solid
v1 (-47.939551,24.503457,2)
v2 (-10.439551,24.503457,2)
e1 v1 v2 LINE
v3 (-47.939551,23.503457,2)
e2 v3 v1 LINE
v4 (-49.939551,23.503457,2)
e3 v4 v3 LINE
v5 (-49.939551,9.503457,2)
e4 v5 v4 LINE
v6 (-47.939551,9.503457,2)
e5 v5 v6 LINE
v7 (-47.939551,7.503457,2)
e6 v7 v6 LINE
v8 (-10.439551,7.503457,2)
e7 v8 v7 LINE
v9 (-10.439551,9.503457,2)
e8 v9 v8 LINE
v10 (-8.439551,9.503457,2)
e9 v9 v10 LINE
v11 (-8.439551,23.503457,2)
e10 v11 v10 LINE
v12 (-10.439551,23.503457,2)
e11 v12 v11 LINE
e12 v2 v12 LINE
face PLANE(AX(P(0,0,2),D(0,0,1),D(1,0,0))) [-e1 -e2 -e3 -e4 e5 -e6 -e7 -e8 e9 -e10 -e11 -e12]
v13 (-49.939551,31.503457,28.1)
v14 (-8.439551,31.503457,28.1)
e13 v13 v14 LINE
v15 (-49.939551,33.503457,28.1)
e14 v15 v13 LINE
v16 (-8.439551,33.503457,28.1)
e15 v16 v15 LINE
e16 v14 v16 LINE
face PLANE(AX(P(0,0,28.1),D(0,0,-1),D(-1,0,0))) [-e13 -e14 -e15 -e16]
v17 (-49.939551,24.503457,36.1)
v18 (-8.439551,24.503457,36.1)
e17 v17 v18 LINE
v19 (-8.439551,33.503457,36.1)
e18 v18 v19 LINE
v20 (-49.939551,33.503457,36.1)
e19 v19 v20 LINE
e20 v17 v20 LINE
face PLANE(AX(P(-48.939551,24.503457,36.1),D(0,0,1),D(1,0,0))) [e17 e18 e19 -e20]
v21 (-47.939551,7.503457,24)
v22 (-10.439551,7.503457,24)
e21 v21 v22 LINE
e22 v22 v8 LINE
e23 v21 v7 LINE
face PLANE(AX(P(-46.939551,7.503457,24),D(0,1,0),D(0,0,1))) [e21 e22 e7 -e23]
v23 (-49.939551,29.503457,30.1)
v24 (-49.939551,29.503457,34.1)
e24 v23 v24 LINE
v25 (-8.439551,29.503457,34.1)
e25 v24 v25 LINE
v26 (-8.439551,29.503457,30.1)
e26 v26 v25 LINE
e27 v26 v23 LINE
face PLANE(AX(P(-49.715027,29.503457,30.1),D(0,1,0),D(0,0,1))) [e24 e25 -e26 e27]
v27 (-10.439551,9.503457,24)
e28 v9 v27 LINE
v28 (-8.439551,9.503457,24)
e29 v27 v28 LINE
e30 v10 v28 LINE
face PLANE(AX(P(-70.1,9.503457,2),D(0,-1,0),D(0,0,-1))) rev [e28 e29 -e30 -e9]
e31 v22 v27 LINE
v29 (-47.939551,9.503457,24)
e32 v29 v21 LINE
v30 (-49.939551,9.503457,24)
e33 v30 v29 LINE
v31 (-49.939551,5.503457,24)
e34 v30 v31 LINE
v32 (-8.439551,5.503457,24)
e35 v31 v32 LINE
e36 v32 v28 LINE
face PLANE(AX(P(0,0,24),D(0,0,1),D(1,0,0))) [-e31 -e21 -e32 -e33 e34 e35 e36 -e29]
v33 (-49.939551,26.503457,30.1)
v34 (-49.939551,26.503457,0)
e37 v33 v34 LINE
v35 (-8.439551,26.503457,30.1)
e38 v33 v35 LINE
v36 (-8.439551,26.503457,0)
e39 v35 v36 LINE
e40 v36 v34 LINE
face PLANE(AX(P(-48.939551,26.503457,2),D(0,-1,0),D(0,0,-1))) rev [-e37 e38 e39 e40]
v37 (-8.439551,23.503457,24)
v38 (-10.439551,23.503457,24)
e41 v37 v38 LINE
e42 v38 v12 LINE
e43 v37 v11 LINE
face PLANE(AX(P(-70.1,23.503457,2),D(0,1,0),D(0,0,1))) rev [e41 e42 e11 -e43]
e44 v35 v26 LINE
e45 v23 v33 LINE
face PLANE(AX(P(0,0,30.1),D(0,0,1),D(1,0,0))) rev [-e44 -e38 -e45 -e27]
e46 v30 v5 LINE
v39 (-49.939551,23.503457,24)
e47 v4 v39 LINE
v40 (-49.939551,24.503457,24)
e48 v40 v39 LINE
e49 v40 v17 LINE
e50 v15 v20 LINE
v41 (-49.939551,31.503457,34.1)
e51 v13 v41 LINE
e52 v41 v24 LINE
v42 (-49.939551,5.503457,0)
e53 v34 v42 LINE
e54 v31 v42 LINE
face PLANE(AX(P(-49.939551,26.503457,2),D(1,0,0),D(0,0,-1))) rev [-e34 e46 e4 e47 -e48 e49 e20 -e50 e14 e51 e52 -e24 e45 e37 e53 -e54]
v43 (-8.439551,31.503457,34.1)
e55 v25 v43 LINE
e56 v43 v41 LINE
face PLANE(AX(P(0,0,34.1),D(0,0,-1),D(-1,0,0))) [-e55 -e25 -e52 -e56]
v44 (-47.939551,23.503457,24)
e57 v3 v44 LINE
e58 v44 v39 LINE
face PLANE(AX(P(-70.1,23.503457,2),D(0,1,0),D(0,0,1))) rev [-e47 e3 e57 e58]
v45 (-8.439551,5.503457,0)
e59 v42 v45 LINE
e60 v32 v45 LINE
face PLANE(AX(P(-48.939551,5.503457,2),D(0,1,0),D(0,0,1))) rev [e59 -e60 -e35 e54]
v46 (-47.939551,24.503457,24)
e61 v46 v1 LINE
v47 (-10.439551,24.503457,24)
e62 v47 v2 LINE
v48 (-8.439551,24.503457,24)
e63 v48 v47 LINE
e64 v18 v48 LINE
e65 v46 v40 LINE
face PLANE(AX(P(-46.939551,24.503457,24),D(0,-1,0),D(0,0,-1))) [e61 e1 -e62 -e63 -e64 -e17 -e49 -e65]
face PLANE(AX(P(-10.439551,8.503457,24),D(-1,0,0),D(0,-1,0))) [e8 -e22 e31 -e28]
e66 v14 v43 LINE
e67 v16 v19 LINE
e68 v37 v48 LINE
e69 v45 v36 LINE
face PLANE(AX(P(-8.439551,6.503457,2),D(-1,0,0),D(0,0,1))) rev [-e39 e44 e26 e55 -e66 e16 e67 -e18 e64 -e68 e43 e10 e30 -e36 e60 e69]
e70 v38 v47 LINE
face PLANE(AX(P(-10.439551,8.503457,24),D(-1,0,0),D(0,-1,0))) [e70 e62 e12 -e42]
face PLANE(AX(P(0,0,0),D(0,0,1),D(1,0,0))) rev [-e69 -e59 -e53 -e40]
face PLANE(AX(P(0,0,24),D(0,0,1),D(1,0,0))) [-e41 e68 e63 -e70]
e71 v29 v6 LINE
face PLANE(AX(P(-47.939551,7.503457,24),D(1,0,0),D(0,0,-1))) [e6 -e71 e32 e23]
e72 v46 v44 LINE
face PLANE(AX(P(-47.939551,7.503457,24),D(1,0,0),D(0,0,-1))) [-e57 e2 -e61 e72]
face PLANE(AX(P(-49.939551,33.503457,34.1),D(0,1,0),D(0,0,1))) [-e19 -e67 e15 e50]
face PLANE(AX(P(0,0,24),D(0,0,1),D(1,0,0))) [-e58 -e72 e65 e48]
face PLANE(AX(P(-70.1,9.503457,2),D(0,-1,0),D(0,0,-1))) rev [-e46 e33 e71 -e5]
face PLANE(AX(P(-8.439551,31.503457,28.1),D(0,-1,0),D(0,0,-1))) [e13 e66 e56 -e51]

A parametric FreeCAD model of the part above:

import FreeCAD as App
import Part
import Sketcher

V = App.Vector

doc = App.newDocument("Part")
body = doc.addObject("PartDesign::Body", "Body")

# Sketch on XY plane
sketch1 = doc.addObject("Sketcher::SketchObject", "Sketch")
body.addObject(sketch1)
sketch1.AttachmentSupport = (doc.XY_Plane, [""])
sketch1.MapMode = "FlatFace"
sketch1.addGeometry([
    Part.LineSegment(V(-8, 27, 0), V(-50, 27, 0)),
    Part.LineSegment(V(-50, 27, 0), V(-50, 6, 0)),
    Part.LineSegment(V(-50, 6, 0), V(-8, 6, 0)),
    Part.LineSegment(V(-8, 6, 0), V(-8, 27, 0)),
], False)
sketch1.addConstraint([
    Sketcher.Constraint("Coincident", 0, 2, 1, 1),
    Sketcher.Constraint("Coincident", 1, 2, 2, 1),
    Sketcher.Constraint("Coincident", 2, 2, 3, 1),
    Sketcher.Constraint("Coincident", 3, 2, 0, 1),
    Sketcher.Constraint("Horizontal", 0),
    Sketcher.Constraint("Vertical", 1),
    Sketcher.Constraint("Horizontal", 2),
    Sketcher.Constraint("Vertical", 3),
    Sketcher.Constraint("DistanceY", 1, 2, 1, 1, 21.0),
    Sketcher.Constraint("DistanceX", 0, 2, 0, 1, 41.5),
    Sketcher.Constraint("DistanceX", 0, 2, -1, 1, 49.939551),
    Sketcher.Constraint("DistanceY", -1, 1, 0, 2, 26.503457),
])
pad1 = doc.addObject("PartDesign::Pad", "Pad")
body.addObject(pad1)
pad1.Profile = sketch1
pad1.Length = 2

# Sketch on XY plane
sketch2 = doc.addObject("Sketcher::SketchObject", "Sketch001")
body.addObject(sketch2)
sketch2.AttachmentSupport = (doc.XY_Plane, [""])
sketch2.MapMode = "FlatFace"
sketch2.addGeometry([
    Part.LineSegment(V(-8, 27, 0), V(-50, 27, 0)),  # 0
    Part.LineSegment(V(-50, 27, 0), V(-50, 6, 0)),  # 1
    Part.LineSegment(V(-50, 6, 0), V(-8, 6, 0)),  # 2
    Part.LineSegment(V(-8, 6, 0), V(-8, 27, 0)),  # 3
    Part.LineSegment(V(-48, 8, 0), V(-48, 25, 0)),  # 4
    Part.LineSegment(V(-48, 25, 0), V(-10, 25, 0)),  # 5
    Part.LineSegment(V(-10, 25, 0), V(-10, 8, 0)),  # 6
    Part.LineSegment(V(-10, 8, 0), V(-48, 8, 0)),  # 7
], False)
sketch2.addConstraint([
    Sketcher.Constraint("Coincident", 0, 2, 1, 1),
    Sketcher.Constraint("Coincident", 1, 2, 2, 1),
    Sketcher.Constraint("Coincident", 2, 2, 3, 1),
    Sketcher.Constraint("Coincident", 3, 2, 0, 1),
    Sketcher.Constraint("Coincident", 4, 2, 5, 1),
    Sketcher.Constraint("Coincident", 5, 2, 6, 1),
    Sketcher.Constraint("Coincident", 6, 2, 7, 1),
    Sketcher.Constraint("Coincident", 7, 2, 4, 1),
    Sketcher.Constraint("Horizontal", 0),
    Sketcher.Constraint("Vertical", 1),
    Sketcher.Constraint("Horizontal", 2),
    Sketcher.Constraint("Vertical", 3),
    Sketcher.Constraint("Vertical", 4),
    Sketcher.Constraint("Horizontal", 5),
    Sketcher.Constraint("Vertical", 6),
    Sketcher.Constraint("Horizontal", 7),
    Sketcher.Constraint("DistanceY", 1, 2, 1, 1, 21.0),
    Sketcher.Constraint("DistanceY", 4, 1, 4, 2, 17.0),
    Sketcher.Constraint("DistanceX", 0, 2, 0, 1, 41.5),
    Sketcher.Constraint("DistanceX", 5, 1, 5, 2, 37.5),
    Sketcher.Constraint("DistanceX", 0, 2, 4, 2, 2.0),
    Sketcher.Constraint("DistanceY", 4, 2, 0, 2, 2.0),
    Sketcher.Constraint("DistanceX", 0, 2, -1, 1, 49.939551),
    Sketcher.Constraint("DistanceY", -1, 1, 0, 2, 26.503457),
])
pad2 = doc.addObject("PartDesign::Pad", "Pad001")
body.addObject(pad2)
pad2.Profile = sketch2
pad2.Length = 24

# Sketch on YZ plane
sketch3 = doc.addObject("Sketcher::SketchObject", "Sketch002")
body.addObject(sketch3)
sketch3.AttachmentSupport = (doc.YZ_Plane, [""])
sketch3.MapMode = "FlatFace"
sketch3.addGeometry([
    Part.LineSegment(V(24, 29, 0), V(10, 29, 0)),
    Part.LineSegment(V(10, 29, 0), V(10, 2, 0)),
    Part.LineSegment(V(10, 2, 0), V(24, 2, 0)),
    Part.LineSegment(V(24, 2, 0), V(24, 29, 0)),
], False)
sketch3.addConstraint([
    Sketcher.Constraint("Coincident", 0, 2, 1, 1),
    Sketcher.Constraint("Coincident", 1, 2, 2, 1),
    Sketcher.Constraint("Coincident", 2, 2, 3, 1),
    Sketcher.Constraint("Coincident", 3, 2, 0, 1),
    Sketcher.Constraint("Horizontal", 0),
    Sketcher.Constraint("Vertical", 1),
    Sketcher.Constraint("Horizontal", 2),
    Sketcher.Constraint("Vertical", 3),
    Sketcher.Constraint("DistanceX", 0, 2, 0, 1, 14.0),
    Sketcher.Constraint("DistanceY", -1, 1, 1, 2, 2.0),
    Sketcher.Constraint("DistanceY", 1, 2, 1, 1, 26.838471),
    Sketcher.Constraint("DistanceX", -1, 1, 0, 2, 9.503457),
])
pocket1 = doc.addObject("PartDesign::Pocket", "Pocket")
body.addObject(pocket1)
pocket1.Profile = sketch3
pocket1.Length = 70.1

# Sketch on XZ plane
sketch4 = doc.addObject("Sketcher::SketchObject", "Sketch003")
body.addObject(sketch4)
sketch4.AttachmentSupport = (doc.XZ_Plane, [""])
sketch4.MapMode = "FlatFace"
sketch4.AttachmentOffset = App.Placement(V(0, 0, -26.503457), App.Rotation())
sketch4.addGeometry([
    Part.LineSegment(V(-8, 21, 0), V(-50, 21, 0)),
    Part.LineSegment(V(-50, 21, 0), V(-50, 36, 0)),
    Part.LineSegment(V(-50, 36, 0), V(-8, 36, 0)),
    Part.LineSegment(V(-8, 36, 0), V(-8, 21, 0)),
], False)
sketch4.addConstraint([
    Sketcher.Constraint("Coincident", 0, 2, 1, 1),
    Sketcher.Constraint("Coincident", 1, 2, 2, 1),
    Sketcher.Constraint("Coincident", 2, 2, 3, 1),
    Sketcher.Constraint("Coincident", 3, 2, 0, 1),
    Sketcher.Constraint("Horizontal", 0),
    Sketcher.Constraint("Vertical", 1),
    Sketcher.Constraint("Horizontal", 2),
    Sketcher.Constraint("Vertical", 3),
    Sketcher.Constraint("DistanceX", 0, 2, 0, 1, 41.5),
    Sketcher.Constraint("DistanceY", -1, 1, 1, 2, 36.1),
    Sketcher.Constraint("DistanceY", 1, 1, 1, 2, 15.492807),
    Sketcher.Constraint("DistanceX", 0, 2, -1, 1, 49.939551),
])
pad3 = doc.addObject("PartDesign::Pad", "Pad002")
body.addObject(pad3)
pad3.Profile = sketch4
pad3.Length = 2

# Sketch on XY plane
sketch5 = doc.addObject("Sketcher::SketchObject", "Sketch004")
body.addObject(sketch5)
sketch5.AttachmentSupport = (doc.XY_Plane, [""])
sketch5.MapMode = "FlatFace"
sketch5.AttachmentOffset = App.Placement(V(0, 0, 36.1), App.Rotation())
sketch5.addGeometry([
    Part.LineSegment(V(-8, 25, 0), V(-8, 34, 0)),
    Part.LineSegment(V(-8, 34, 0), V(-50, 34, 0)),
    Part.LineSegment(V(-50, 34, 0), V(-50, 25, 0)),
    Part.LineSegment(V(-50, 25, 0), V(-8, 25, 0)),
], False)
sketch5.addConstraint([
    Sketcher.Constraint("Coincident", 0, 2, 1, 1),
    Sketcher.Constraint("Coincident", 1, 2, 2, 1),
    Sketcher.Constraint("Coincident", 2, 2, 3, 1),
    Sketcher.Constraint("Coincident", 3, 2, 0, 1),
    Sketcher.Constraint("Vertical", 0),
    Sketcher.Constraint("Horizontal", 1),
    Sketcher.Constraint("Vertical", 2),
    Sketcher.Constraint("Horizontal", 3),
    Sketcher.Constraint("DistanceY", 0, 1, 0, 2, 9.0),
    Sketcher.Constraint("DistanceX", 1, 2, 1, 1, 41.5),
    Sketcher.Constraint("DistanceX", 0, 2, -1, 1, 8.439551),
    Sketcher.Constraint("DistanceY", -1, 1, 0, 2, 33.503457),
])
pad4 = doc.addObject("PartDesign::Pad", "Pad003")
body.addObject(pad4)
pad4.Profile = sketch5
pad4.Length = 2
pad4.Reversed = True

# Sketch on XY plane
sketch6 = doc.addObject("Sketcher::SketchObject", "Sketch005")
body.addObject(sketch6)
sketch6.AttachmentSupport = (doc.XY_Plane, [""])
sketch6.MapMode = "FlatFace"
sketch6.AttachmentOffset = App.Placement(V(0, 0, 36.1), App.Rotation())
sketch6.addGeometry([
    Part.LineSegment(V(-49.9, 33.5, 0), V(-49.9, 31.5, 0)),
    Part.LineSegment(V(-49.9, 31.5, 0), V(-8.4, 31.5, 0)),
    Part.LineSegment(V(-8.4, 31.5, 0), V(-8.4, 33.5, 0)),
    Part.LineSegment(V(-8.4, 33.5, 0), V(-49.9, 33.5, 0)),
], False)
sketch6.addConstraint([
    Sketcher.Constraint("Coincident", 0, 2, 1, 1),
    Sketcher.Constraint("Coincident", 1, 2, 2, 1),
    Sketcher.Constraint("Coincident", 2, 2, 3, 1),
    Sketcher.Constraint("Coincident", 3, 2, 0, 1),
    Sketcher.Constraint("Vertical", 0),
    Sketcher.Constraint("Horizontal", 1),
    Sketcher.Constraint("Vertical", 2),
    Sketcher.Constraint("Horizontal", 3),
    Sketcher.Constraint("DistanceY", 0, 2, 0, 1, 2.0),
    Sketcher.Constraint("DistanceX", 1, 1, 1, 2, 41.5),
    Sketcher.Constraint("DistanceX", 0, 2, -1, 1, 49.939551),
    Sketcher.Constraint("DistanceY", -1, 1, 0, 2, 31.503457),
])
pad5 = doc.addObject("PartDesign::Pad", "Pad004")
body.addObject(pad5)
pad5.Profile = sketch6
pad5.Length = 8
pad5.Reversed = True

# Sketch on XY plane
sketch7 = doc.addObject("Sketcher::SketchObject", "Sketch006")
body.addObject(sketch7)
sketch7.AttachmentSupport = (doc.XY_Plane, [""])
sketch7.MapMode = "FlatFace"
sketch7.AttachmentOffset = App.Placement(V(0, 0, 36.1), App.Rotation())
sketch7.addGeometry([
    Part.LineSegment(V(-49.9, 29.5, 0), V(-49.9, 26.5, 0)),
    Part.LineSegment(V(-49.9, 26.5, 0), V(-8.4, 26.5, 0)),
    Part.LineSegment(V(-8.4, 26.5, 0), V(-8.4, 29.5, 0)),
    Part.LineSegment(V(-8.4, 29.5, 0), V(-49.9, 29.5, 0)),
], False)
sketch7.addConstraint([
    Sketcher.Constraint("Coincident", 0, 2, 1, 1),
    Sketcher.Constraint("Coincident", 1, 2, 2, 1),
    Sketcher.Constraint("Coincident", 2, 2, 3, 1),
    Sketcher.Constraint("Coincident", 3, 2, 0, 1),
    Sketcher.Constraint("Vertical", 0),
    Sketcher.Constraint("Horizontal", 1),
    Sketcher.Constraint("Vertical", 2),
    Sketcher.Constraint("Horizontal", 3),
    Sketcher.Constraint("DistanceY", 0, 2, 0, 1, 3.0),
    Sketcher.Constraint("DistanceX", 1, 1, 1, 2, 41.5),
    Sketcher.Constraint("DistanceX", 0, 2, -1, 1, 49.939551),
    Sketcher.Constraint("DistanceY", -1, 1, 0, 2, 26.503457),
])
pad6 = doc.addObject("PartDesign::Pad", "Pad005")
body.addObject(pad6)
pad6.Profile = sketch7
pad6.Length = 6
pad6.Reversed = True

doc.recompute()
